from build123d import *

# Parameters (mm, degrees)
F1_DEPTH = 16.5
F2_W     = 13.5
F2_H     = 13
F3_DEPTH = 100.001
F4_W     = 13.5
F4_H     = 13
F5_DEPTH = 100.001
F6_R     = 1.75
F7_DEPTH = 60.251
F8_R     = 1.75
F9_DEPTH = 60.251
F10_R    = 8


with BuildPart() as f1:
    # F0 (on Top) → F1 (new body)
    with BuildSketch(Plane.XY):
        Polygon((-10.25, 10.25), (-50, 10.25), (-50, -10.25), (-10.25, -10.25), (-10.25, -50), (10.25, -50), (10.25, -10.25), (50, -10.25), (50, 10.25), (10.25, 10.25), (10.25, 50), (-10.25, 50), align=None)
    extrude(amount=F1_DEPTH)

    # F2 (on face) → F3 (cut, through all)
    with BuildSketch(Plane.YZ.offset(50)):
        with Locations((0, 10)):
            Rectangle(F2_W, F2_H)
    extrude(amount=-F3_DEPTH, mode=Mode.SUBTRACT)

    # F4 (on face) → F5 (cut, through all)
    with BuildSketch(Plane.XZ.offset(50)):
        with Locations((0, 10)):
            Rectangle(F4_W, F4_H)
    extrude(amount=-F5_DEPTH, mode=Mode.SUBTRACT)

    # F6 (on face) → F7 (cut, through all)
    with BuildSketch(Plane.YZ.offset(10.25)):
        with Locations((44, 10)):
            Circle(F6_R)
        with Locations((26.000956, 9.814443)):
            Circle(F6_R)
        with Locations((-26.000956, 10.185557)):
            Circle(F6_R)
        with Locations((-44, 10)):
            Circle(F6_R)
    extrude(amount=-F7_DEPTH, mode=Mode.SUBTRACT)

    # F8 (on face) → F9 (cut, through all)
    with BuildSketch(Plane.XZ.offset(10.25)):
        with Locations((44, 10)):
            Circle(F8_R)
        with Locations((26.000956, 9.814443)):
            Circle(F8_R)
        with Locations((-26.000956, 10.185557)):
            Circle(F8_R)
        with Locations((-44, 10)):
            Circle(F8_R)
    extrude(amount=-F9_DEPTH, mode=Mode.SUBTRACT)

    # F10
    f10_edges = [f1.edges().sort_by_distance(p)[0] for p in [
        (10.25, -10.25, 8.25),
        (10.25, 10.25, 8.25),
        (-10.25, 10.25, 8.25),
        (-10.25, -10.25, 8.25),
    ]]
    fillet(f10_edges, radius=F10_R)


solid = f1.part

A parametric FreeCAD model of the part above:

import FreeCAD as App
import Part
import Sketcher
Q = App.Units.Quantity


def edges_at(feature, points):
    """Names of the edges that pass closest to the given points."""
    edges = feature.Shape.Edges
    near = lambda p: min(range(len(edges)), key=lambda i: edges[i].distToShape(Part.Vertex(*p))[0])
    return sorted({f"Edge{near(p) + 1}" for p in points})


def add_polygon(sketch, points):
    """Adds a closed chain of lines whose ends are joined by coincident constraints."""
    first, n = sketch.GeometryCount, len(points)
    for a, b in zip(points, points[1:] + points[:1]):
        sketch.addGeometry(Part.LineSegment(App.Vector(*a, 0), App.Vector(*b, 0)), False)
    for i in range(n):
        sketch.addConstraint(Sketcher.Constraint("Coincident", first + i, 2, first + (i + 1) % n, 1))

doc = App.newDocument("Part")
params = doc.addObject("Spreadsheet::Sheet", "Params")
for row, (alias, value) in enumerate([
    ("sketch1_width", "20.5 mm"),
    ("pad1_length", "16.5 mm"),
    ("sketch2_height", "13 mm"),
    ("sketch2_width", "13.5 mm"),
    ("sketch3_height", "13 mm"),
    ("sketch3_width", "13.5 mm"),
    ("sketch4_diameter", "3.5 mm"),
    ("sketch5_diameter", "3.5 mm"),
    ("fillet_radius", "8 mm"),
], start=1):
    params.set(f"A{row}", alias)
    params.set(f"B{row}", "=" + value)
    params.setAlias(f"B{row}", alias)

body = doc.addObject("PartDesign::Body", "Body")

sketch1 = doc.addObject("Sketcher::SketchObject", "Sketch")
body.addObject(sketch1)
sketch1.AttachmentSupport = (doc.XY_Plane, [""])
sketch1.MapMode = "FlatFace"
add_polygon(sketch1, [(-10, 10), (-50, 10), (-50, -10), (-10, -10), (-10, -50), (10, -50), (10, -10), (50, -10), (50, 10), (10, 10), (10, 50), (-10, 50)])
sketch1.addConstraint(Sketcher.Constraint("Horizontal", 0))
sketch1.addConstraint(Sketcher.Constraint("Vertical", 1))
sketch1.addConstraint(Sketcher.Constraint("Horizontal", 2))
sketch1.addConstraint(Sketcher.Constraint("Vertical", 3))
sketch1.addConstraint(Sketcher.Constraint("Horizontal", 4))
sketch1.addConstraint(Sketcher.Constraint("Vertical", 5))
sketch1.addConstraint(Sketcher.Constraint("Horizontal", 6))
sketch1.addConstraint(Sketcher.Constraint("Vertical", 7))
sketch1.addConstraint(Sketcher.Constraint("Horizontal", 8))
sketch1.addConstraint(Sketcher.Constraint("Vertical", 9))
sketch1.addConstraint(Sketcher.Constraint("Horizontal", 10))
sketch1.addConstraint(Sketcher.Constraint("Vertical", 11))
sketch1.addConstraint(Sketcher.Constraint("Symmetric", 0, 2, 6, 2, -1, 1))
sketch1.addConstraint(Sketcher.Constraint("Symmetric", 2, 2, 8, 2, -1, 1))
sketch1.addConstraint(Sketcher.Constraint("Symmetric", 4, 2, 10, 2, -1, 1))
sketch1.addConstraint(Sketcher.Constraint("Symmetric", 2, 2, 5, 2, -2))
sketch1.addConstraint(Sketcher.Constraint("Equal", 10, 1))
sketch1.addConstraint(Sketcher.Constraint("Equal", 8, 3))
sketch1.addConstraint(Sketcher.Constraint("DistanceX", 4, 1, 4, 2, Q("20.5 mm")))
sketch1.addConstraint(Sketcher.Constraint("DistanceX", 0, 2, -1, 1, Q("50 mm")))
sketch1.setExpression("Constraints[30]", "Params.sketch1_width")
pad1 = doc.addObject("PartDesign::Pad", "Pad")
body.addObject(pad1)
pad1.Profile = sketch1
pad1.setExpression("Length", "Params.pad1_length")

sketch2 = doc.addObject("Sketcher::SketchObject", "Sketch001")
body.addObject(sketch2)
sketch2.AttachmentSupport = (doc.YZ_Plane, [""])
sketch2.MapMode = "FlatFace"
sketch2.AttachmentOffset = App.Placement(App.Vector(0, 0, 50), App.Rotation())
add_polygon(sketch2, [(-7, 16), (-7, 4), (7, 4), (7, 16)])
sketch2.addConstraint(Sketcher.Constraint("Vertical", 0))
sketch2.addConstraint(Sketcher.Constraint("Horizontal", 1))
sketch2.addConstraint(Sketcher.Constraint("Vertical", 2))
sketch2.addConstraint(Sketcher.Constraint("Horizontal", 3))
sketch2.addConstraint(Sketcher.Constraint("DistanceY", 0, 2, 0, 1, Q("13 mm")))
sketch2.addConstraint(Sketcher.Constraint("DistanceX", 1, 1, 1, 2, Q("13.5 mm")))
sketch2.addConstraint(Sketcher.Constraint("DistanceY", -1, 1, 0, 2, Q("3.5 mm")))
sketch2.addConstraint(Sketcher.Constraint("DistanceX", 0, 2, -1, 1, Q("6.75 mm")))
sketch2.setExpression("Constraints[8]", "Params.sketch2_height")
sketch2.setExpression("Constraints[9]", "Params.sketch2_width")
pocket1 = doc.addObject("PartDesign::Pocket", "Pocket")
body.addObject(pocket1)
pocket1.Profile = sketch2
pocket1.Type = "ThroughAll"

sketch3 = doc.addObject("Sketcher::SketchObject", "Sketch002")
body.addObject(sketch3)
sketch3.AttachmentSupport = (doc.XZ_Plane, [""])
sketch3.MapMode = "FlatFace"
sketch3.AttachmentOffset = App.Placement(App.Vector(0, 0, 50), App.Rotation())
add_polygon(sketch3, [(-7, 16), (-7, 4), (7, 4), (7, 16)])
sketch3.addConstraint(Sketcher.Constraint("Vertical", 0))
sketch3.addConstraint(Sketcher.Constraint("Horizontal", 1))
sketch3.addConstraint(Sketcher.Constraint("Vertical", 2))
sketch3.addConstraint(Sketcher.Constraint("Horizontal", 3))
sketch3.addConstraint(Sketcher.Constraint("DistanceY", 0, 2, 0, 1, Q("13 mm")))
sketch3.addConstraint(Sketcher.Constraint("DistanceX", 1, 1, 1, 2, Q("13.5 mm")))
sketch3.addConstraint(Sketcher.Constraint("DistanceY", -1, 1, 0, 2, Q("3.5 mm")))
sketch3.addConstraint(Sketcher.Constraint("DistanceX", 0, 2, -1, 1, Q("6.75 mm")))
sketch3.setExpression("Constraints[8]", "Params.sketch3_height")
sketch3.setExpression("Constraints[9]", "Params.sketch3_width")
pocket2 = doc.addObject("PartDesign::Pocket", "Pocket001")
body.addObject(pocket2)
pocket2.Profile = sketch3
pocket2.Type = "ThroughAll"

sketch4 = doc.addObject("Sketcher::SketchObject", "Sketch003")
body.addObject(sketch4)
sketch4.AttachmentSupport = (doc.YZ_Plane, [""])
sketch4.MapMode = "FlatFace"
sketch4.AttachmentOffset = App.Placement(App.Vector(0, 0, 10.25), App.Rotation())
sketch4.addGeometry(Part.Circle(App.Vector(44, 10, 0), App.Vector(0, 0, 1), 1.8), False)
sketch4.addGeometry(Part.Circle(App.Vector(26, 9.8, 0), App.Vector(0, 0, 1), 1.8), False)
sketch4.addGeometry(Part.Circle(App.Vector(-26, 10.2, 0), App.Vector(0, 0, 1), 1.8), False)
sketch4.addGeometry(Part.Circle(App.Vector(-44, 10, 0), App.Vector(0, 0, 1), 1.8), False)
sketch4.addConstraint(Sketcher.Constraint("Equal", 0, 1))
sketch4.addConstraint(Sketcher.Constraint("Equal", 1, 2))
sketch4.addConstraint(Sketcher.Constraint("Equal", 2, 3))
sketch4.addConstraint(Sketcher.Constraint("Symmetric", 0, 3, 3, 3, -2))
sketch4.addConstraint(Sketcher.Constraint("Diameter", 0, Q("3.5 mm")))
sketch4.addConstraint(Sketcher.Constraint("DistanceX", -1, 1, 0, 3, Q("44 mm")))
sketch4.addConstraint(Sketcher.Constraint("DistanceY", -1, 1, 0, 3, Q("10 mm")))
sketch4.addConstraint(Sketcher.Constraint("DistanceX", 2, 3, 1, 3, Q("52.001912 mm")))
sketch4.addConstraint(Sketcher.Constraint("DistanceX", -1, 1, 1, 3, Q("26.000956 mm")))
sketch4.addConstraint(Sketcher.Constraint("DistanceY", -1, 1, 1, 3, Q("9.814443 mm")))
sketch4.addConstraint(Sketcher.Constraint("DistanceY", -1, 1, 2, 3, Q("10.185557 mm")))
sketch4.setExpression("Constraints[4]", "Params.sketch4_diameter")
pocket3 = doc.addObject("PartDesign::Pocket", "Pocket002")
body.addObject(pocket3)
pocket3.Profile = sketch4
pocket3.Type = "ThroughAll"

sketch5 = doc.addObject("Sketcher::SketchObject", "Sketch004")
body.addObject(sketch5)
sketch5.AttachmentSupport = (doc.XZ_Plane, [""])
sketch5.MapMode = "FlatFace"
sketch5.AttachmentOffset = App.Placement(App.Vector(0, 0, 10.25), App.Rotation())
sketch5.addGeometry(Part.Circle(App.Vector(44, 10, 0), App.Vector(0, 0, 1), 1.8), False)
sketch5.addGeometry(Part.Circle(App.Vector(26, 9.8, 0), App.Vector(0, 0, 1), 1.8), False)
sketch5.addGeometry(Part.Circle(App.Vector(-26, 10.2, 0), App.Vector(0, 0, 1), 1.8), False)
sketch5.addGeometry(Part.Circle(App.Vector(-44, 10, 0), App.Vector(0, 0, 1), 1.8), False)
sketch5.addConstraint(Sketcher.Constraint("Equal", 0, 1))
sketch5.addConstraint(Sketcher.Constraint("Equal", 1, 2))
sketch5.addConstraint(Sketcher.Constraint("Equal", 2, 3))
sketch5.addConstraint(Sketcher.Constraint("Symmetric", 0, 3, 3, 3, -2))
sketch5.addConstraint(Sketcher.Constraint("Diameter", 0, Q("3.5 mm")))
sketch5.addConstraint(Sketcher.Constraint("DistanceX", -1, 1, 0, 3, Q("44 mm")))
sketch5.addConstraint(Sketcher.Constraint("DistanceY", -1, 1, 0, 3, Q("10 mm")))
sketch5.addConstraint(Sketcher.Constraint("DistanceX", 2, 3, 1, 3, Q("52.001912 mm")))
sketch5.addConstraint(Sketcher.Constraint("DistanceX", -1, 1, 1, 3, Q("26.000956 mm")))
sketch5.addConstraint(Sketcher.Constraint("DistanceY", -1, 1, 1, 3, Q("9.814443 mm")))
sketch5.addConstraint(Sketcher.Constraint("DistanceY", -1, 1, 2, 3, Q("10.185557 mm")))
sketch5.setExpression("Constraints[4]", "Params.sketch5_diameter")
pocket4 = doc.addObject("PartDesign::Pocket", "Pocket003")
body.addObject(pocket4)
pocket4.Profile = sketch5
pocket4.Type = "ThroughAll"
doc.recompute()

fillet = doc.addObject("PartDesign::Fillet", "Fillet")
body.addObject(fillet)
fillet.Base = (pocket4, edges_at(pocket4, [
    (10.25, -10.25, 8.25),
    (10.25, 10.25, 8.25),
    (-10.25, 10.25, 8.25),
    (-10.25, -10.25, 8.25),
]))
fillet.setExpression("Radius", "Params.fillet_radius")

doc.recompute()
